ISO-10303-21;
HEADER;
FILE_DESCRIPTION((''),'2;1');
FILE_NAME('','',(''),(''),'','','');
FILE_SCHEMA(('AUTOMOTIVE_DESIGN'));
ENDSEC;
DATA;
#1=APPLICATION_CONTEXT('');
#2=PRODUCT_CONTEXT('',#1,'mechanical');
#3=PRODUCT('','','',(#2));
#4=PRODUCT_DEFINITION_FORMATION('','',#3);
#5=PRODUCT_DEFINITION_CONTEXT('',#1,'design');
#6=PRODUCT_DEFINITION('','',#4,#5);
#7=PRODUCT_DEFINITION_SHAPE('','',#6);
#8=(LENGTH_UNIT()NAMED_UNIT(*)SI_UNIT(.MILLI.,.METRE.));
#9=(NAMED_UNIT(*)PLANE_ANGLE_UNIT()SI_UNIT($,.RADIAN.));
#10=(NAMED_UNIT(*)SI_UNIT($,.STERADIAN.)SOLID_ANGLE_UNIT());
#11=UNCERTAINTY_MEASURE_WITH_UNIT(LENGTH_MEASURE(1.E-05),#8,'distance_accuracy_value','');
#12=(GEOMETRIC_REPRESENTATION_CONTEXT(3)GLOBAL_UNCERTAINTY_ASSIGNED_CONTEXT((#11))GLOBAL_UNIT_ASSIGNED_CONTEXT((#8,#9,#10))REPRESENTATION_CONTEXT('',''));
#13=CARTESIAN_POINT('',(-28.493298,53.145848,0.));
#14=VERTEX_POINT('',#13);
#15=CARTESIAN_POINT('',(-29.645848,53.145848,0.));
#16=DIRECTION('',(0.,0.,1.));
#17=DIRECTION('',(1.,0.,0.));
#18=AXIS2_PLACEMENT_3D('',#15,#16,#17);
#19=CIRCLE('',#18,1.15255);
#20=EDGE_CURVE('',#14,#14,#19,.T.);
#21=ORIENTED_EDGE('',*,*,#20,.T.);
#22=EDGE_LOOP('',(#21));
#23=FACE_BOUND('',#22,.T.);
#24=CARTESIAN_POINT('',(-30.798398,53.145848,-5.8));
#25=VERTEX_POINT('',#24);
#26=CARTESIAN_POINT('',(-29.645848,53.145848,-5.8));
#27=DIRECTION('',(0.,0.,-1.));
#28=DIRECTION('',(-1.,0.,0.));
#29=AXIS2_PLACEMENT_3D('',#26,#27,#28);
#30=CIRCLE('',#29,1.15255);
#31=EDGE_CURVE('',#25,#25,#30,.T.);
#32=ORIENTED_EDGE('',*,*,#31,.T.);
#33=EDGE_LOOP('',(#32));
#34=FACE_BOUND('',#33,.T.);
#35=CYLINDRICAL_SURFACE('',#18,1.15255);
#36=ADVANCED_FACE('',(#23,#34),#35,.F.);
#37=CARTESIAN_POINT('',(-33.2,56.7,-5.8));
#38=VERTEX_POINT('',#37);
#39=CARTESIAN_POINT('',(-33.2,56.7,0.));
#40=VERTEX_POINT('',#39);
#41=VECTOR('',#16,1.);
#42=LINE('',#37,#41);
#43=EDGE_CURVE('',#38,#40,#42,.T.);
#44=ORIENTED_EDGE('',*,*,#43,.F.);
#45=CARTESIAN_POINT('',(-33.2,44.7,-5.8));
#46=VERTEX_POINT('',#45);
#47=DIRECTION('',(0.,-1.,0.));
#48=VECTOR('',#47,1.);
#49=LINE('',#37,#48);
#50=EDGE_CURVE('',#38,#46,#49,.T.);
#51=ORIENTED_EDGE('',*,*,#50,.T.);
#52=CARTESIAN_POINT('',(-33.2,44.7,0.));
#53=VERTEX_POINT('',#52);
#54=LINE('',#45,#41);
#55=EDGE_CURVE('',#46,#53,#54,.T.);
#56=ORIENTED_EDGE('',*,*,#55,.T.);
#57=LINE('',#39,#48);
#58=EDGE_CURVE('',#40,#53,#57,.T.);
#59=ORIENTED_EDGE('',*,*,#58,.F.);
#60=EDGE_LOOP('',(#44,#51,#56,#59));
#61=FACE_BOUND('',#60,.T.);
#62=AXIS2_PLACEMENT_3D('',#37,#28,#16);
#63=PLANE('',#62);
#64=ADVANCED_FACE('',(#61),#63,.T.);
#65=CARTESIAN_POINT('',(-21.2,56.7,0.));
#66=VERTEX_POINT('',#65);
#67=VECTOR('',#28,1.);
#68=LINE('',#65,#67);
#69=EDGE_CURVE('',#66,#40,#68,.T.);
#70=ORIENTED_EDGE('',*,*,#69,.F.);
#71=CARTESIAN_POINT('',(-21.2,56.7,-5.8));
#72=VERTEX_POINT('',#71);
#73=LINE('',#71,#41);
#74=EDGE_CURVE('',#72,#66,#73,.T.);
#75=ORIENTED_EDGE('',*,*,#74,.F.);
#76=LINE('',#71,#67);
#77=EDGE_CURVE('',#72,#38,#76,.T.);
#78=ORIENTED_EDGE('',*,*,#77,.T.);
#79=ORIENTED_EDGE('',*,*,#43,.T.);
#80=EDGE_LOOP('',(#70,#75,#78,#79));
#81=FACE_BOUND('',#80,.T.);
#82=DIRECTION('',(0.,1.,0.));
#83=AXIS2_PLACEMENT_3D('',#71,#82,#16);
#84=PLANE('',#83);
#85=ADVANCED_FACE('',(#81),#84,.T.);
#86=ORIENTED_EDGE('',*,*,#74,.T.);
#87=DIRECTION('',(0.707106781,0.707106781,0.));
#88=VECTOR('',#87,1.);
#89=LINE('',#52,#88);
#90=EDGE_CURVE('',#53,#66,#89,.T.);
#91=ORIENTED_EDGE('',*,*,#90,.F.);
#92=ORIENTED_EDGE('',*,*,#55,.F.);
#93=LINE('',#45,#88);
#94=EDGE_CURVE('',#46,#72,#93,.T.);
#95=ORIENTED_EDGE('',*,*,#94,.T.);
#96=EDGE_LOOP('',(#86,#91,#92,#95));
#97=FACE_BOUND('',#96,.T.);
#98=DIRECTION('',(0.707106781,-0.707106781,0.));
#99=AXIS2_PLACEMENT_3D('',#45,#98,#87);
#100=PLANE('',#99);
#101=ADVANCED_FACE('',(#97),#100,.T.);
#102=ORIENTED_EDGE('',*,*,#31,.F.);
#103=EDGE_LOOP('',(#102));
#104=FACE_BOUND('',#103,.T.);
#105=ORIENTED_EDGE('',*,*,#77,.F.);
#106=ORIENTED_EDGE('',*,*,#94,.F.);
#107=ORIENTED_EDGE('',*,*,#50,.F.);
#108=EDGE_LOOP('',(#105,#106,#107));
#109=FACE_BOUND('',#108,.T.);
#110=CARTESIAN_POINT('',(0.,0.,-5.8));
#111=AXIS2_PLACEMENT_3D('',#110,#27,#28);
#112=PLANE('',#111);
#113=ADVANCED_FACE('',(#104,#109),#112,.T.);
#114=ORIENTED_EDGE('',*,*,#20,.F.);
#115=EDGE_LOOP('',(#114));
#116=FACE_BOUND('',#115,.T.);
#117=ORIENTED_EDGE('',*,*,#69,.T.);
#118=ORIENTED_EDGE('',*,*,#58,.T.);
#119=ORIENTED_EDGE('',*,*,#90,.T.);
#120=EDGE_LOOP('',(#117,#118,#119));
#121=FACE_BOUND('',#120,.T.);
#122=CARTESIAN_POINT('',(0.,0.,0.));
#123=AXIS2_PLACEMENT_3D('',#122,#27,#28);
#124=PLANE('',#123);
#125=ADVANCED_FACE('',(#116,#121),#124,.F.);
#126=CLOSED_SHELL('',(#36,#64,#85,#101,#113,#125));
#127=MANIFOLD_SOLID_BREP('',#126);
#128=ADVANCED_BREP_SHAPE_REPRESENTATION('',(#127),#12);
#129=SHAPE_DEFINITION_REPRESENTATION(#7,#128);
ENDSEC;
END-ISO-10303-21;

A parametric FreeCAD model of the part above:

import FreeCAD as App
import Part
import Sketcher

V = App.Vector

doc = App.newDocument("Part")
body = doc.addObject("PartDesign::Body", "Body")

# Sketch on XY plane
sketch1 = body.newObject("Sketcher::SketchObject", "Sketch")
sketch1.AttachmentSupport = (doc.getObject("XY_Plane"), [""])
sketch1.MapMode = "FlatFace"
sketch1.addGeometry([
    Part.LineSegment(V(-33.2, 56.7, 0), V(-33.2, 44.7, 0)),
    Part.LineSegment(V(-33.2, 44.7, 0), V(-21.2, 56.7, 0)),
    Part.LineSegment(V(-21.2, 56.7, 0), V(-33.2, 56.7, 0)),
], False)
sketch1.addConstraint([
    Sketcher.Constraint("Coincident", 0, 2, 1, 1),
    Sketcher.Constraint("Coincident", 1, 2, 2, 1),
    Sketcher.Constraint("Coincident", 2, 2, 0, 1),
    Sketcher.Constraint("Vertical", 0),
    Sketcher.Constraint("Horizontal", 2),
    Sketcher.Constraint("Equal", 2, 0),
    Sketcher.Constraint("DistanceX", 2, 2, 2, 1, 12.0),
    Sketcher.Constraint("DistanceX", 0, 2, -1, 1, 33.2),
    Sketcher.Constraint("DistanceY", -1, 1, 0, 2, 44.7),
])
pad1 = body.newObject("PartDesign::Pad", "Pad")
pad1.Profile = sketch1
pad1.Length = 5.8
pad1.Reversed = True

# Sketch on XY plane
sketch2 = body.newObject("Sketcher::SketchObject", "Sketch001")
sketch2.AttachmentSupport = (doc.getObject("XY_Plane"), [""])
sketch2.MapMode = "FlatFace"
sketch2.addGeometry([
    Part.Circle(V(-28.675365, 25, 0), V(0, 0, 1), 1.15255),
    Part.Circle(V(-29.645848, 53.145848, 0), V(0, 0, 1), 1.15255),
], False)
sketch2.addConstraint([
    Sketcher.Constraint("Equal", 0, 1),
    Sketcher.Constraint("DistanceY", -1, 1, 0, 3, 25.0),
    Sketcher.Constraint("Diameter", 0, 2.3051),
    Sketcher.Constraint("DistanceX", 0, 3, -1, 1, 28.675365),
    Sketcher.Constraint("DistanceX", 1, 3, -1, 1, 29.645848),
    Sketcher.Constraint("DistanceY", -1, 1, 1, 3, 53.145848),
])
doc.recompute()
hole = body.newObject("PartDesign::Hole", "Hole")
hole.Profile = sketch2
hole.ThreadType = "None"
hole.Diameter = 2.3051
hole.DepthType = "Dimension"
hole.Depth = 5.8
hole.DrillPoint = "Flat"

doc.recompute()
